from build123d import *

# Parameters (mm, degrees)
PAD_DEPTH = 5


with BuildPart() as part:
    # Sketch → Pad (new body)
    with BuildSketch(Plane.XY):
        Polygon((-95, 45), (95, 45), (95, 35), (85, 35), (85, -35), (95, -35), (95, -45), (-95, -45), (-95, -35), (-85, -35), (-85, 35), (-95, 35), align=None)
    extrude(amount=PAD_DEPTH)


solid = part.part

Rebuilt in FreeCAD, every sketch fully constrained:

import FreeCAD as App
import Part
import Sketcher

V = App.Vector
Q = App.Units.Quantity

doc = App.newDocument("Part")
body = doc.addObject("PartDesign::Body", "Body")

# Sketch on XY plane
sketch1 = body.newObject("Sketcher::SketchObject", "Sketch")
sketch1.AttachmentSupport = (doc.getObject("XY_Plane"), [""])
sketch1.MapMode = "FlatFace"
sketch1.addGeometry(Part.LineSegment(V(95, 45, 0), V(-95, 45, 0)), False)
sketch1.addGeometry(Part.LineSegment(V(-95, 45, 0), V(-95, 35, 0)), False)
sketch1.addGeometry(Part.LineSegment(V(-95, 35, 0), V(-85, 35, 0)), False)
sketch1.addGeometry(Part.LineSegment(V(-85, 35, 0), V(-85, -35, 0)), False)
sketch1.addGeometry(Part.LineSegment(V(-85, -35, 0), V(-95, -35, 0)), False)
sketch1.addGeometry(Part.LineSegment(V(-95, -35, 0), V(-95, -45, 0)), False)
sketch1.addGeometry(Part.LineSegment(V(-95, -45, 0), V(95, -45, 0)), False)
sketch1.addGeometry(Part.LineSegment(V(95, -45, 0), V(95, -35, 0)), False)
sketch1.addGeometry(Part.LineSegment(V(95, -35, 0), V(85, -35, 0)), False)
sketch1.addGeometry(Part.LineSegment(V(85, -35, 0), V(85, 35, 0)), False)
sketch1.addGeometry(Part.LineSegment(V(85, 35, 0), V(95, 35, 0)), False)
sketch1.addGeometry(Part.LineSegment(V(95, 35, 0), V(95, 45, 0)), False)
sketch1.addConstraint(Sketcher.Constraint("Coincident", 0, 2, 1, 1))
sketch1.addConstraint(Sketcher.Constraint("Coincident", 1, 2, 2, 1))
sketch1.addConstraint(Sketcher.Constraint("Coincident", 2, 2, 3, 1))
sketch1.addConstraint(Sketcher.Constraint("Coincident", 3, 2, 4, 1))
sketch1.addConstraint(Sketcher.Constraint("Coincident", 4, 2, 5, 1))
sketch1.addConstraint(Sketcher.Constraint("Coincident", 5, 2, 6, 1))
sketch1.addConstraint(Sketcher.Constraint("Coincident", 6, 2, 7, 1))
sketch1.addConstraint(Sketcher.Constraint("Coincident", 7, 2, 8, 1))
sketch1.addConstraint(Sketcher.Constraint("Coincident", 8, 2, 9, 1))
sketch1.addConstraint(Sketcher.Constraint("Coincident", 9, 2, 10, 1))
sketch1.addConstraint(Sketcher.Constraint("Coincident", 10, 2, 11, 1))
sketch1.addConstraint(Sketcher.Constraint("Coincident", 11, 2, 0, 1))
sketch1.addConstraint(Sketcher.Constraint("Horizontal", 0))
sketch1.addConstraint(Sketcher.Constraint("Vertical", 1))
sketch1.addConstraint(Sketcher.Constraint("Horizontal", 2))
sketch1.addConstraint(Sketcher.Constraint("Vertical", 3))
sketch1.addConstraint(Sketcher.Constraint("Horizontal", 4))
sketch1.addConstraint(Sketcher.Constraint("Vertical", 5))
sketch1.addConstraint(Sketcher.Constraint("Horizontal", 6))
sketch1.addConstraint(Sketcher.Constraint("Vertical", 7))
sketch1.addConstraint(Sketcher.Constraint("Horizontal", 8))
sketch1.addConstraint(Sketcher.Constraint("Vertical", 9))
sketch1.addConstraint(Sketcher.Constraint("Horizontal", 10))
sketch1.addConstraint(Sketcher.Constraint("Vertical", 11))
sketch1.addConstraint(Sketcher.Constraint("Symmetric", 0, 2, 6, 2, -1, 1))
sketch1.addConstraint(Sketcher.Constraint("Symmetric", 2, 2, 8, 2, -1, 1))
sketch1.addConstraint(Sketcher.Constraint("Symmetric", 4, 2, 10, 2, -1, 1))
sketch1.addConstraint(Sketcher.Constraint("Symmetric", 4, 2, 7, 2, -2))
sketch1.addConstraint(Sketcher.Constraint("Equal", 10, 1))
sketch1.addConstraint(Sketcher.Constraint("DistanceX", 0, 2, 0, 1, Q("190 mm")))
sketch1.addConstraint(Sketcher.Constraint("DistanceX", 2, 1, 2, 2, Q("10 mm")))
sketch1.addConstraint(Sketcher.Constraint("DistanceY", 3, 2, 3, 1, Q("70 mm")))
pad1 = body.newObject("PartDesign::Pad", "Pad")
pad1.Profile = sketch1
pad1.Length = 5

doc.recompute()
